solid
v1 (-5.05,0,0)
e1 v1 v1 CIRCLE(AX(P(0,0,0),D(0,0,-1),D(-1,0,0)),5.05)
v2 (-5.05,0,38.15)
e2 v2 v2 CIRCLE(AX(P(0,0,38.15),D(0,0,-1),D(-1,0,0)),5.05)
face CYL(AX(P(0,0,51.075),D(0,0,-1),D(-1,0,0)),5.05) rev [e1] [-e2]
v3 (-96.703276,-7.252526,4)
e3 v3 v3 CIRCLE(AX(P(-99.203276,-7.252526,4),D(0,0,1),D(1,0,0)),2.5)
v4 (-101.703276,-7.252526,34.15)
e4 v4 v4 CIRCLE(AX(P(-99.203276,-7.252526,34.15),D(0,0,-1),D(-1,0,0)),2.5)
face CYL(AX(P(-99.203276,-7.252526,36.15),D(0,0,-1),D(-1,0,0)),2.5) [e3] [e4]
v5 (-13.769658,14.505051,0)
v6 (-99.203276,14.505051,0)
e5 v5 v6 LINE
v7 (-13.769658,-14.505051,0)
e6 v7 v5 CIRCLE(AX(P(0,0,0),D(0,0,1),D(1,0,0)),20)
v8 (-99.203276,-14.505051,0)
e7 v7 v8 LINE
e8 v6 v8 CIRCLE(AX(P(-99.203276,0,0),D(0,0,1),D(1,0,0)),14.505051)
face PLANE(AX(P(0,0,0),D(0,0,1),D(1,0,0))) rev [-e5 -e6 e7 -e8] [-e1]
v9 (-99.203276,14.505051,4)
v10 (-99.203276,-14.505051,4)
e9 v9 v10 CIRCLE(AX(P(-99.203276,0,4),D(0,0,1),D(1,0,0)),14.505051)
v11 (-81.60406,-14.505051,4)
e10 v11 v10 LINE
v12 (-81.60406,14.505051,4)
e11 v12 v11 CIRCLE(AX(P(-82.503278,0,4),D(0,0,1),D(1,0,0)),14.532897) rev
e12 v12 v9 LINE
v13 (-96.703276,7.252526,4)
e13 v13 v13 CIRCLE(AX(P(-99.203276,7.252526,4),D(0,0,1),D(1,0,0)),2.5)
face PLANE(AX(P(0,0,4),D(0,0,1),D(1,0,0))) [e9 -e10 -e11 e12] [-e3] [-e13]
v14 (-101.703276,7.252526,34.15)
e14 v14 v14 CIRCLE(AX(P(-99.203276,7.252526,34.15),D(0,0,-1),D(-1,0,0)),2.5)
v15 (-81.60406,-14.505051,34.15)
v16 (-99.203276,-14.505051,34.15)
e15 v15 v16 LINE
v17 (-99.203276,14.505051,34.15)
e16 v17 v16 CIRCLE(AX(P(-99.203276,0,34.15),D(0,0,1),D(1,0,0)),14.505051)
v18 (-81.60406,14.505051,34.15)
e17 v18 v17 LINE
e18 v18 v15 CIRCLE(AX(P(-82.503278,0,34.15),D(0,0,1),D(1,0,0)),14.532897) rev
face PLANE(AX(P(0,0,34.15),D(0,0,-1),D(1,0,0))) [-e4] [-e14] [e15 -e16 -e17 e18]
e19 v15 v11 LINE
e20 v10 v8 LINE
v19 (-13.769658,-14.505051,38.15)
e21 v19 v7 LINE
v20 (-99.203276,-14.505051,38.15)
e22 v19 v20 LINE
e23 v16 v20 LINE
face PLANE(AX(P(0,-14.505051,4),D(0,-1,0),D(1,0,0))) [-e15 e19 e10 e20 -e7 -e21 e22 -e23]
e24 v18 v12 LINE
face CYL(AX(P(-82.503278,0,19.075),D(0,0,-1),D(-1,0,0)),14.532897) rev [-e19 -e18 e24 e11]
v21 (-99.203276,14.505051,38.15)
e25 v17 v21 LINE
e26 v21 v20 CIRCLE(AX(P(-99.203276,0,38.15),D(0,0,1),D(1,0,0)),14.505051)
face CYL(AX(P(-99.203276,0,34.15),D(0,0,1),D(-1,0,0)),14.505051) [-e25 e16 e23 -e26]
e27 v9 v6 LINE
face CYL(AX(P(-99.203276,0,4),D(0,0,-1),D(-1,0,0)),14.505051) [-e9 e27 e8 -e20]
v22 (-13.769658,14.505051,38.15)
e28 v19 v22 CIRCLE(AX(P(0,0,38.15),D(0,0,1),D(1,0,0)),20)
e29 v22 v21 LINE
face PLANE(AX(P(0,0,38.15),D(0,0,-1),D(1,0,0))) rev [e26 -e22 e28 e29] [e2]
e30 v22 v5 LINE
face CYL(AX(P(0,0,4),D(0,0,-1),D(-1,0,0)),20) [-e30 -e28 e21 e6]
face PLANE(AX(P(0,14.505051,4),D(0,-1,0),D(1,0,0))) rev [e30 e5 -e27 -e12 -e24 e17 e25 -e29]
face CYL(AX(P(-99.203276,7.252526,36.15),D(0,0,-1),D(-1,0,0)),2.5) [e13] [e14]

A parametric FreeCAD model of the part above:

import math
import FreeCAD as App
import Part
import Sketcher
Q = App.Units.Quantity

doc = App.newDocument("Part")
body = doc.addObject("PartDesign::Body", "Body")

# Sketch on XY plane
sketch1 = doc.addObject("Sketcher::SketchObject", "Sketch")
body.addObject(sketch1)
sketch1.AttachmentSupport = (doc.XY_Plane, [""])
sketch1.MapMode = "FlatFace"
sketch1.addGeometry([
    Part.LineSegment(App.Vector(-14, 15, 0), App.Vector(-99, 15, 0)),
    Part.ArcOfCircle(Part.Circle(App.Vector(-99, 0, 0), App.Vector(0, 0, 1), 15), math.radians(90), math.radians(270)),
    Part.LineSegment(App.Vector(-99, -15, 0), App.Vector(-14, -15, 0)),
    Part.ArcOfCircle(Part.Circle(App.Vector(0, 0, 0), App.Vector(0, 0, 1), 20), math.radians(-134), math.radians(134)),
], False)
sketch1.addConstraint([
    Sketcher.Constraint("Tangent", 0, 2, 1, 1),
    Sketcher.Constraint("Tangent", 1, 2, 2, 1),
    Sketcher.Constraint("Coincident", 2, 2, 3, 1),
    Sketcher.Constraint("Coincident", 3, 2, 0, 1),
    Sketcher.Constraint("Horizontal", 0),
    Sketcher.Constraint("Horizontal", 2),
    Sketcher.Constraint("Coincident", 3, 3, -1, 1),
    Sketcher.Constraint("PointOnObject", 1, 3, -1),
    Sketcher.Constraint("Radius", 3, Q("20 mm")),
    Sketcher.Constraint("Radius", 1, Q("14.505051 mm")),
    Sketcher.Constraint("DistanceX", 0, 2, 0, 1, Q("85.433618 mm")),
])
pad1 = doc.addObject("PartDesign::Pad", "Pad")
body.addObject(pad1)
pad1.Profile = sketch1
pad1.Length = 4

# Sketch on XY plane
sketch2 = doc.addObject("Sketcher::SketchObject", "Sketch001")
body.addObject(sketch2)
sketch2.AttachmentSupport = (doc.XY_Plane, [""])
sketch2.MapMode = "FlatFace"
sketch2.AttachmentOffset = App.Placement(App.Vector(0, 0, 4), App.Rotation())
sketch2.addGeometry([
    Part.LineSegment(App.Vector(-14, 15, 0), App.Vector(-82, 15, 0)),
    Part.ArcOfCircle(Part.Circle(App.Vector(-83, 0, 0), App.Vector(0, 0, 1), 15), math.radians(-86), math.radians(86)),
    Part.LineSegment(App.Vector(-82, -15, 0), App.Vector(-14, -15, 0)),
    Part.ArcOfCircle(Part.Circle(App.Vector(0, 0, 0), App.Vector(0, 0, 1), 20), math.radians(-134), math.radians(134)),
], False)
sketch2.addConstraint([
    Sketcher.Constraint("Coincident", 0, 2, 1, 2),
    Sketcher.Constraint("Coincident", 1, 1, 2, 1),
    Sketcher.Constraint("Coincident", 2, 2, 3, 1),
    Sketcher.Constraint("Coincident", 3, 2, 0, 1),
    Sketcher.Constraint("Horizontal", 0),
    Sketcher.Constraint("Horizontal", 2),
    Sketcher.Constraint("Coincident", 3, 3, -1, 1),
    Sketcher.Constraint("Symmetric", 0, 2, 1, 1, -1),
    Sketcher.Constraint("Radius", 3, Q("20 mm")),
    Sketcher.Constraint("Radius", 1, Q("14.532897 mm")),
    Sketcher.Constraint("DistanceX", 0, 2, 0, 1, Q("67.834402 mm")),
    Sketcher.Constraint("DistanceX", 1, 3, -1, 1, Q("82.503278 mm")),
])
pad2 = doc.addObject("PartDesign::Pad", "Pad001")
body.addObject(pad2)
pad2.Profile = sketch2
pad2.Length = 15.075
body2 = doc.addObject("PartDesign::Body", "Body001")
doc.recompute()

body2.BaseFeature = body
doc.recompute()

mirroring = doc.addObject("Part::Mirroring", "Mirroring")
mirroring.Source = body
mirroring.Base = App.Vector(0, 0, 19.075)
mirroring.Normal = App.Vector(0, 0, 1)
body3 = doc.addObject("PartDesign::Body", "Body002")
body3.BaseFeature = mirroring
boolean = doc.addObject("PartDesign::Boolean", "Boolean")
body2.addObject(boolean)
boolean.Type = "Fuse"
boolean.addObjects([body3])
doc.recompute()

# Sketch on XY plane
sketch3 = doc.addObject("Sketcher::SketchObject", "Sketch002")
body2.addObject(sketch3)
sketch3.AttachmentSupport = (doc.getObject("XY_Plane001"), [""])
sketch3.MapMode = "FlatFace"
sketch3.addGeometry(Part.Circle(App.Vector(0, 0, 0), App.Vector(0, 0, 1), 5), False)
sketch3.addConstraint([
    Sketcher.Constraint("Coincident", 0, 3, -1, 1),
    Sketcher.Constraint("Diameter", 0, Q("10.1 mm")),
])
pocket1 = doc.addObject("PartDesign::Pocket", "Pocket")
body2.addObject(pocket1)
pocket1.Profile = sketch3
pocket1.Length = 51.075
pocket1.Reversed = True

# Sketch on XY plane
sketch4 = doc.addObject("Sketcher::SketchObject", "Sketch003")
body2.addObject(sketch4)
sketch4.AttachmentSupport = (doc.getObject("XY_Plane001"), [""])
sketch4.MapMode = "FlatFace"
sketch4.AttachmentOffset = App.Placement(App.Vector(0, 0, 34.15), App.Rotation())
sketch4.addGeometry([
    Part.Circle(App.Vector(-99.2, 7.3, 0), App.Vector(0, 0, 1), 2.5),
    Part.Circle(App.Vector(-99.2, -7.3, 0), App.Vector(0, 0, 1), 2.5),
], False)
sketch4.addConstraint([
    Sketcher.Constraint("Equal", 0, 1),
    Sketcher.Constraint("Symmetric", 0, 3, 1, 3, -1),
    Sketcher.Constraint("Diameter", 0, Q("5 mm")),
    Sketcher.Constraint("DistanceY", 1, 3, 0, 3, Q("14.505051 mm")),
    Sketcher.Constraint("DistanceX", 0, 3, -1, 1, Q("99.203276 mm")),
])
pad3 = doc.addObject("PartDesign::Pad", "Pad002")
body2.addObject(pad3)
pad3.Profile = sketch4
pad3.Type = "TwoLengths"
pad3.Length = 32
pad3.Length2 = 2
pad3.Reversed = True
mirroring.Visibility = False

doc.recompute()
